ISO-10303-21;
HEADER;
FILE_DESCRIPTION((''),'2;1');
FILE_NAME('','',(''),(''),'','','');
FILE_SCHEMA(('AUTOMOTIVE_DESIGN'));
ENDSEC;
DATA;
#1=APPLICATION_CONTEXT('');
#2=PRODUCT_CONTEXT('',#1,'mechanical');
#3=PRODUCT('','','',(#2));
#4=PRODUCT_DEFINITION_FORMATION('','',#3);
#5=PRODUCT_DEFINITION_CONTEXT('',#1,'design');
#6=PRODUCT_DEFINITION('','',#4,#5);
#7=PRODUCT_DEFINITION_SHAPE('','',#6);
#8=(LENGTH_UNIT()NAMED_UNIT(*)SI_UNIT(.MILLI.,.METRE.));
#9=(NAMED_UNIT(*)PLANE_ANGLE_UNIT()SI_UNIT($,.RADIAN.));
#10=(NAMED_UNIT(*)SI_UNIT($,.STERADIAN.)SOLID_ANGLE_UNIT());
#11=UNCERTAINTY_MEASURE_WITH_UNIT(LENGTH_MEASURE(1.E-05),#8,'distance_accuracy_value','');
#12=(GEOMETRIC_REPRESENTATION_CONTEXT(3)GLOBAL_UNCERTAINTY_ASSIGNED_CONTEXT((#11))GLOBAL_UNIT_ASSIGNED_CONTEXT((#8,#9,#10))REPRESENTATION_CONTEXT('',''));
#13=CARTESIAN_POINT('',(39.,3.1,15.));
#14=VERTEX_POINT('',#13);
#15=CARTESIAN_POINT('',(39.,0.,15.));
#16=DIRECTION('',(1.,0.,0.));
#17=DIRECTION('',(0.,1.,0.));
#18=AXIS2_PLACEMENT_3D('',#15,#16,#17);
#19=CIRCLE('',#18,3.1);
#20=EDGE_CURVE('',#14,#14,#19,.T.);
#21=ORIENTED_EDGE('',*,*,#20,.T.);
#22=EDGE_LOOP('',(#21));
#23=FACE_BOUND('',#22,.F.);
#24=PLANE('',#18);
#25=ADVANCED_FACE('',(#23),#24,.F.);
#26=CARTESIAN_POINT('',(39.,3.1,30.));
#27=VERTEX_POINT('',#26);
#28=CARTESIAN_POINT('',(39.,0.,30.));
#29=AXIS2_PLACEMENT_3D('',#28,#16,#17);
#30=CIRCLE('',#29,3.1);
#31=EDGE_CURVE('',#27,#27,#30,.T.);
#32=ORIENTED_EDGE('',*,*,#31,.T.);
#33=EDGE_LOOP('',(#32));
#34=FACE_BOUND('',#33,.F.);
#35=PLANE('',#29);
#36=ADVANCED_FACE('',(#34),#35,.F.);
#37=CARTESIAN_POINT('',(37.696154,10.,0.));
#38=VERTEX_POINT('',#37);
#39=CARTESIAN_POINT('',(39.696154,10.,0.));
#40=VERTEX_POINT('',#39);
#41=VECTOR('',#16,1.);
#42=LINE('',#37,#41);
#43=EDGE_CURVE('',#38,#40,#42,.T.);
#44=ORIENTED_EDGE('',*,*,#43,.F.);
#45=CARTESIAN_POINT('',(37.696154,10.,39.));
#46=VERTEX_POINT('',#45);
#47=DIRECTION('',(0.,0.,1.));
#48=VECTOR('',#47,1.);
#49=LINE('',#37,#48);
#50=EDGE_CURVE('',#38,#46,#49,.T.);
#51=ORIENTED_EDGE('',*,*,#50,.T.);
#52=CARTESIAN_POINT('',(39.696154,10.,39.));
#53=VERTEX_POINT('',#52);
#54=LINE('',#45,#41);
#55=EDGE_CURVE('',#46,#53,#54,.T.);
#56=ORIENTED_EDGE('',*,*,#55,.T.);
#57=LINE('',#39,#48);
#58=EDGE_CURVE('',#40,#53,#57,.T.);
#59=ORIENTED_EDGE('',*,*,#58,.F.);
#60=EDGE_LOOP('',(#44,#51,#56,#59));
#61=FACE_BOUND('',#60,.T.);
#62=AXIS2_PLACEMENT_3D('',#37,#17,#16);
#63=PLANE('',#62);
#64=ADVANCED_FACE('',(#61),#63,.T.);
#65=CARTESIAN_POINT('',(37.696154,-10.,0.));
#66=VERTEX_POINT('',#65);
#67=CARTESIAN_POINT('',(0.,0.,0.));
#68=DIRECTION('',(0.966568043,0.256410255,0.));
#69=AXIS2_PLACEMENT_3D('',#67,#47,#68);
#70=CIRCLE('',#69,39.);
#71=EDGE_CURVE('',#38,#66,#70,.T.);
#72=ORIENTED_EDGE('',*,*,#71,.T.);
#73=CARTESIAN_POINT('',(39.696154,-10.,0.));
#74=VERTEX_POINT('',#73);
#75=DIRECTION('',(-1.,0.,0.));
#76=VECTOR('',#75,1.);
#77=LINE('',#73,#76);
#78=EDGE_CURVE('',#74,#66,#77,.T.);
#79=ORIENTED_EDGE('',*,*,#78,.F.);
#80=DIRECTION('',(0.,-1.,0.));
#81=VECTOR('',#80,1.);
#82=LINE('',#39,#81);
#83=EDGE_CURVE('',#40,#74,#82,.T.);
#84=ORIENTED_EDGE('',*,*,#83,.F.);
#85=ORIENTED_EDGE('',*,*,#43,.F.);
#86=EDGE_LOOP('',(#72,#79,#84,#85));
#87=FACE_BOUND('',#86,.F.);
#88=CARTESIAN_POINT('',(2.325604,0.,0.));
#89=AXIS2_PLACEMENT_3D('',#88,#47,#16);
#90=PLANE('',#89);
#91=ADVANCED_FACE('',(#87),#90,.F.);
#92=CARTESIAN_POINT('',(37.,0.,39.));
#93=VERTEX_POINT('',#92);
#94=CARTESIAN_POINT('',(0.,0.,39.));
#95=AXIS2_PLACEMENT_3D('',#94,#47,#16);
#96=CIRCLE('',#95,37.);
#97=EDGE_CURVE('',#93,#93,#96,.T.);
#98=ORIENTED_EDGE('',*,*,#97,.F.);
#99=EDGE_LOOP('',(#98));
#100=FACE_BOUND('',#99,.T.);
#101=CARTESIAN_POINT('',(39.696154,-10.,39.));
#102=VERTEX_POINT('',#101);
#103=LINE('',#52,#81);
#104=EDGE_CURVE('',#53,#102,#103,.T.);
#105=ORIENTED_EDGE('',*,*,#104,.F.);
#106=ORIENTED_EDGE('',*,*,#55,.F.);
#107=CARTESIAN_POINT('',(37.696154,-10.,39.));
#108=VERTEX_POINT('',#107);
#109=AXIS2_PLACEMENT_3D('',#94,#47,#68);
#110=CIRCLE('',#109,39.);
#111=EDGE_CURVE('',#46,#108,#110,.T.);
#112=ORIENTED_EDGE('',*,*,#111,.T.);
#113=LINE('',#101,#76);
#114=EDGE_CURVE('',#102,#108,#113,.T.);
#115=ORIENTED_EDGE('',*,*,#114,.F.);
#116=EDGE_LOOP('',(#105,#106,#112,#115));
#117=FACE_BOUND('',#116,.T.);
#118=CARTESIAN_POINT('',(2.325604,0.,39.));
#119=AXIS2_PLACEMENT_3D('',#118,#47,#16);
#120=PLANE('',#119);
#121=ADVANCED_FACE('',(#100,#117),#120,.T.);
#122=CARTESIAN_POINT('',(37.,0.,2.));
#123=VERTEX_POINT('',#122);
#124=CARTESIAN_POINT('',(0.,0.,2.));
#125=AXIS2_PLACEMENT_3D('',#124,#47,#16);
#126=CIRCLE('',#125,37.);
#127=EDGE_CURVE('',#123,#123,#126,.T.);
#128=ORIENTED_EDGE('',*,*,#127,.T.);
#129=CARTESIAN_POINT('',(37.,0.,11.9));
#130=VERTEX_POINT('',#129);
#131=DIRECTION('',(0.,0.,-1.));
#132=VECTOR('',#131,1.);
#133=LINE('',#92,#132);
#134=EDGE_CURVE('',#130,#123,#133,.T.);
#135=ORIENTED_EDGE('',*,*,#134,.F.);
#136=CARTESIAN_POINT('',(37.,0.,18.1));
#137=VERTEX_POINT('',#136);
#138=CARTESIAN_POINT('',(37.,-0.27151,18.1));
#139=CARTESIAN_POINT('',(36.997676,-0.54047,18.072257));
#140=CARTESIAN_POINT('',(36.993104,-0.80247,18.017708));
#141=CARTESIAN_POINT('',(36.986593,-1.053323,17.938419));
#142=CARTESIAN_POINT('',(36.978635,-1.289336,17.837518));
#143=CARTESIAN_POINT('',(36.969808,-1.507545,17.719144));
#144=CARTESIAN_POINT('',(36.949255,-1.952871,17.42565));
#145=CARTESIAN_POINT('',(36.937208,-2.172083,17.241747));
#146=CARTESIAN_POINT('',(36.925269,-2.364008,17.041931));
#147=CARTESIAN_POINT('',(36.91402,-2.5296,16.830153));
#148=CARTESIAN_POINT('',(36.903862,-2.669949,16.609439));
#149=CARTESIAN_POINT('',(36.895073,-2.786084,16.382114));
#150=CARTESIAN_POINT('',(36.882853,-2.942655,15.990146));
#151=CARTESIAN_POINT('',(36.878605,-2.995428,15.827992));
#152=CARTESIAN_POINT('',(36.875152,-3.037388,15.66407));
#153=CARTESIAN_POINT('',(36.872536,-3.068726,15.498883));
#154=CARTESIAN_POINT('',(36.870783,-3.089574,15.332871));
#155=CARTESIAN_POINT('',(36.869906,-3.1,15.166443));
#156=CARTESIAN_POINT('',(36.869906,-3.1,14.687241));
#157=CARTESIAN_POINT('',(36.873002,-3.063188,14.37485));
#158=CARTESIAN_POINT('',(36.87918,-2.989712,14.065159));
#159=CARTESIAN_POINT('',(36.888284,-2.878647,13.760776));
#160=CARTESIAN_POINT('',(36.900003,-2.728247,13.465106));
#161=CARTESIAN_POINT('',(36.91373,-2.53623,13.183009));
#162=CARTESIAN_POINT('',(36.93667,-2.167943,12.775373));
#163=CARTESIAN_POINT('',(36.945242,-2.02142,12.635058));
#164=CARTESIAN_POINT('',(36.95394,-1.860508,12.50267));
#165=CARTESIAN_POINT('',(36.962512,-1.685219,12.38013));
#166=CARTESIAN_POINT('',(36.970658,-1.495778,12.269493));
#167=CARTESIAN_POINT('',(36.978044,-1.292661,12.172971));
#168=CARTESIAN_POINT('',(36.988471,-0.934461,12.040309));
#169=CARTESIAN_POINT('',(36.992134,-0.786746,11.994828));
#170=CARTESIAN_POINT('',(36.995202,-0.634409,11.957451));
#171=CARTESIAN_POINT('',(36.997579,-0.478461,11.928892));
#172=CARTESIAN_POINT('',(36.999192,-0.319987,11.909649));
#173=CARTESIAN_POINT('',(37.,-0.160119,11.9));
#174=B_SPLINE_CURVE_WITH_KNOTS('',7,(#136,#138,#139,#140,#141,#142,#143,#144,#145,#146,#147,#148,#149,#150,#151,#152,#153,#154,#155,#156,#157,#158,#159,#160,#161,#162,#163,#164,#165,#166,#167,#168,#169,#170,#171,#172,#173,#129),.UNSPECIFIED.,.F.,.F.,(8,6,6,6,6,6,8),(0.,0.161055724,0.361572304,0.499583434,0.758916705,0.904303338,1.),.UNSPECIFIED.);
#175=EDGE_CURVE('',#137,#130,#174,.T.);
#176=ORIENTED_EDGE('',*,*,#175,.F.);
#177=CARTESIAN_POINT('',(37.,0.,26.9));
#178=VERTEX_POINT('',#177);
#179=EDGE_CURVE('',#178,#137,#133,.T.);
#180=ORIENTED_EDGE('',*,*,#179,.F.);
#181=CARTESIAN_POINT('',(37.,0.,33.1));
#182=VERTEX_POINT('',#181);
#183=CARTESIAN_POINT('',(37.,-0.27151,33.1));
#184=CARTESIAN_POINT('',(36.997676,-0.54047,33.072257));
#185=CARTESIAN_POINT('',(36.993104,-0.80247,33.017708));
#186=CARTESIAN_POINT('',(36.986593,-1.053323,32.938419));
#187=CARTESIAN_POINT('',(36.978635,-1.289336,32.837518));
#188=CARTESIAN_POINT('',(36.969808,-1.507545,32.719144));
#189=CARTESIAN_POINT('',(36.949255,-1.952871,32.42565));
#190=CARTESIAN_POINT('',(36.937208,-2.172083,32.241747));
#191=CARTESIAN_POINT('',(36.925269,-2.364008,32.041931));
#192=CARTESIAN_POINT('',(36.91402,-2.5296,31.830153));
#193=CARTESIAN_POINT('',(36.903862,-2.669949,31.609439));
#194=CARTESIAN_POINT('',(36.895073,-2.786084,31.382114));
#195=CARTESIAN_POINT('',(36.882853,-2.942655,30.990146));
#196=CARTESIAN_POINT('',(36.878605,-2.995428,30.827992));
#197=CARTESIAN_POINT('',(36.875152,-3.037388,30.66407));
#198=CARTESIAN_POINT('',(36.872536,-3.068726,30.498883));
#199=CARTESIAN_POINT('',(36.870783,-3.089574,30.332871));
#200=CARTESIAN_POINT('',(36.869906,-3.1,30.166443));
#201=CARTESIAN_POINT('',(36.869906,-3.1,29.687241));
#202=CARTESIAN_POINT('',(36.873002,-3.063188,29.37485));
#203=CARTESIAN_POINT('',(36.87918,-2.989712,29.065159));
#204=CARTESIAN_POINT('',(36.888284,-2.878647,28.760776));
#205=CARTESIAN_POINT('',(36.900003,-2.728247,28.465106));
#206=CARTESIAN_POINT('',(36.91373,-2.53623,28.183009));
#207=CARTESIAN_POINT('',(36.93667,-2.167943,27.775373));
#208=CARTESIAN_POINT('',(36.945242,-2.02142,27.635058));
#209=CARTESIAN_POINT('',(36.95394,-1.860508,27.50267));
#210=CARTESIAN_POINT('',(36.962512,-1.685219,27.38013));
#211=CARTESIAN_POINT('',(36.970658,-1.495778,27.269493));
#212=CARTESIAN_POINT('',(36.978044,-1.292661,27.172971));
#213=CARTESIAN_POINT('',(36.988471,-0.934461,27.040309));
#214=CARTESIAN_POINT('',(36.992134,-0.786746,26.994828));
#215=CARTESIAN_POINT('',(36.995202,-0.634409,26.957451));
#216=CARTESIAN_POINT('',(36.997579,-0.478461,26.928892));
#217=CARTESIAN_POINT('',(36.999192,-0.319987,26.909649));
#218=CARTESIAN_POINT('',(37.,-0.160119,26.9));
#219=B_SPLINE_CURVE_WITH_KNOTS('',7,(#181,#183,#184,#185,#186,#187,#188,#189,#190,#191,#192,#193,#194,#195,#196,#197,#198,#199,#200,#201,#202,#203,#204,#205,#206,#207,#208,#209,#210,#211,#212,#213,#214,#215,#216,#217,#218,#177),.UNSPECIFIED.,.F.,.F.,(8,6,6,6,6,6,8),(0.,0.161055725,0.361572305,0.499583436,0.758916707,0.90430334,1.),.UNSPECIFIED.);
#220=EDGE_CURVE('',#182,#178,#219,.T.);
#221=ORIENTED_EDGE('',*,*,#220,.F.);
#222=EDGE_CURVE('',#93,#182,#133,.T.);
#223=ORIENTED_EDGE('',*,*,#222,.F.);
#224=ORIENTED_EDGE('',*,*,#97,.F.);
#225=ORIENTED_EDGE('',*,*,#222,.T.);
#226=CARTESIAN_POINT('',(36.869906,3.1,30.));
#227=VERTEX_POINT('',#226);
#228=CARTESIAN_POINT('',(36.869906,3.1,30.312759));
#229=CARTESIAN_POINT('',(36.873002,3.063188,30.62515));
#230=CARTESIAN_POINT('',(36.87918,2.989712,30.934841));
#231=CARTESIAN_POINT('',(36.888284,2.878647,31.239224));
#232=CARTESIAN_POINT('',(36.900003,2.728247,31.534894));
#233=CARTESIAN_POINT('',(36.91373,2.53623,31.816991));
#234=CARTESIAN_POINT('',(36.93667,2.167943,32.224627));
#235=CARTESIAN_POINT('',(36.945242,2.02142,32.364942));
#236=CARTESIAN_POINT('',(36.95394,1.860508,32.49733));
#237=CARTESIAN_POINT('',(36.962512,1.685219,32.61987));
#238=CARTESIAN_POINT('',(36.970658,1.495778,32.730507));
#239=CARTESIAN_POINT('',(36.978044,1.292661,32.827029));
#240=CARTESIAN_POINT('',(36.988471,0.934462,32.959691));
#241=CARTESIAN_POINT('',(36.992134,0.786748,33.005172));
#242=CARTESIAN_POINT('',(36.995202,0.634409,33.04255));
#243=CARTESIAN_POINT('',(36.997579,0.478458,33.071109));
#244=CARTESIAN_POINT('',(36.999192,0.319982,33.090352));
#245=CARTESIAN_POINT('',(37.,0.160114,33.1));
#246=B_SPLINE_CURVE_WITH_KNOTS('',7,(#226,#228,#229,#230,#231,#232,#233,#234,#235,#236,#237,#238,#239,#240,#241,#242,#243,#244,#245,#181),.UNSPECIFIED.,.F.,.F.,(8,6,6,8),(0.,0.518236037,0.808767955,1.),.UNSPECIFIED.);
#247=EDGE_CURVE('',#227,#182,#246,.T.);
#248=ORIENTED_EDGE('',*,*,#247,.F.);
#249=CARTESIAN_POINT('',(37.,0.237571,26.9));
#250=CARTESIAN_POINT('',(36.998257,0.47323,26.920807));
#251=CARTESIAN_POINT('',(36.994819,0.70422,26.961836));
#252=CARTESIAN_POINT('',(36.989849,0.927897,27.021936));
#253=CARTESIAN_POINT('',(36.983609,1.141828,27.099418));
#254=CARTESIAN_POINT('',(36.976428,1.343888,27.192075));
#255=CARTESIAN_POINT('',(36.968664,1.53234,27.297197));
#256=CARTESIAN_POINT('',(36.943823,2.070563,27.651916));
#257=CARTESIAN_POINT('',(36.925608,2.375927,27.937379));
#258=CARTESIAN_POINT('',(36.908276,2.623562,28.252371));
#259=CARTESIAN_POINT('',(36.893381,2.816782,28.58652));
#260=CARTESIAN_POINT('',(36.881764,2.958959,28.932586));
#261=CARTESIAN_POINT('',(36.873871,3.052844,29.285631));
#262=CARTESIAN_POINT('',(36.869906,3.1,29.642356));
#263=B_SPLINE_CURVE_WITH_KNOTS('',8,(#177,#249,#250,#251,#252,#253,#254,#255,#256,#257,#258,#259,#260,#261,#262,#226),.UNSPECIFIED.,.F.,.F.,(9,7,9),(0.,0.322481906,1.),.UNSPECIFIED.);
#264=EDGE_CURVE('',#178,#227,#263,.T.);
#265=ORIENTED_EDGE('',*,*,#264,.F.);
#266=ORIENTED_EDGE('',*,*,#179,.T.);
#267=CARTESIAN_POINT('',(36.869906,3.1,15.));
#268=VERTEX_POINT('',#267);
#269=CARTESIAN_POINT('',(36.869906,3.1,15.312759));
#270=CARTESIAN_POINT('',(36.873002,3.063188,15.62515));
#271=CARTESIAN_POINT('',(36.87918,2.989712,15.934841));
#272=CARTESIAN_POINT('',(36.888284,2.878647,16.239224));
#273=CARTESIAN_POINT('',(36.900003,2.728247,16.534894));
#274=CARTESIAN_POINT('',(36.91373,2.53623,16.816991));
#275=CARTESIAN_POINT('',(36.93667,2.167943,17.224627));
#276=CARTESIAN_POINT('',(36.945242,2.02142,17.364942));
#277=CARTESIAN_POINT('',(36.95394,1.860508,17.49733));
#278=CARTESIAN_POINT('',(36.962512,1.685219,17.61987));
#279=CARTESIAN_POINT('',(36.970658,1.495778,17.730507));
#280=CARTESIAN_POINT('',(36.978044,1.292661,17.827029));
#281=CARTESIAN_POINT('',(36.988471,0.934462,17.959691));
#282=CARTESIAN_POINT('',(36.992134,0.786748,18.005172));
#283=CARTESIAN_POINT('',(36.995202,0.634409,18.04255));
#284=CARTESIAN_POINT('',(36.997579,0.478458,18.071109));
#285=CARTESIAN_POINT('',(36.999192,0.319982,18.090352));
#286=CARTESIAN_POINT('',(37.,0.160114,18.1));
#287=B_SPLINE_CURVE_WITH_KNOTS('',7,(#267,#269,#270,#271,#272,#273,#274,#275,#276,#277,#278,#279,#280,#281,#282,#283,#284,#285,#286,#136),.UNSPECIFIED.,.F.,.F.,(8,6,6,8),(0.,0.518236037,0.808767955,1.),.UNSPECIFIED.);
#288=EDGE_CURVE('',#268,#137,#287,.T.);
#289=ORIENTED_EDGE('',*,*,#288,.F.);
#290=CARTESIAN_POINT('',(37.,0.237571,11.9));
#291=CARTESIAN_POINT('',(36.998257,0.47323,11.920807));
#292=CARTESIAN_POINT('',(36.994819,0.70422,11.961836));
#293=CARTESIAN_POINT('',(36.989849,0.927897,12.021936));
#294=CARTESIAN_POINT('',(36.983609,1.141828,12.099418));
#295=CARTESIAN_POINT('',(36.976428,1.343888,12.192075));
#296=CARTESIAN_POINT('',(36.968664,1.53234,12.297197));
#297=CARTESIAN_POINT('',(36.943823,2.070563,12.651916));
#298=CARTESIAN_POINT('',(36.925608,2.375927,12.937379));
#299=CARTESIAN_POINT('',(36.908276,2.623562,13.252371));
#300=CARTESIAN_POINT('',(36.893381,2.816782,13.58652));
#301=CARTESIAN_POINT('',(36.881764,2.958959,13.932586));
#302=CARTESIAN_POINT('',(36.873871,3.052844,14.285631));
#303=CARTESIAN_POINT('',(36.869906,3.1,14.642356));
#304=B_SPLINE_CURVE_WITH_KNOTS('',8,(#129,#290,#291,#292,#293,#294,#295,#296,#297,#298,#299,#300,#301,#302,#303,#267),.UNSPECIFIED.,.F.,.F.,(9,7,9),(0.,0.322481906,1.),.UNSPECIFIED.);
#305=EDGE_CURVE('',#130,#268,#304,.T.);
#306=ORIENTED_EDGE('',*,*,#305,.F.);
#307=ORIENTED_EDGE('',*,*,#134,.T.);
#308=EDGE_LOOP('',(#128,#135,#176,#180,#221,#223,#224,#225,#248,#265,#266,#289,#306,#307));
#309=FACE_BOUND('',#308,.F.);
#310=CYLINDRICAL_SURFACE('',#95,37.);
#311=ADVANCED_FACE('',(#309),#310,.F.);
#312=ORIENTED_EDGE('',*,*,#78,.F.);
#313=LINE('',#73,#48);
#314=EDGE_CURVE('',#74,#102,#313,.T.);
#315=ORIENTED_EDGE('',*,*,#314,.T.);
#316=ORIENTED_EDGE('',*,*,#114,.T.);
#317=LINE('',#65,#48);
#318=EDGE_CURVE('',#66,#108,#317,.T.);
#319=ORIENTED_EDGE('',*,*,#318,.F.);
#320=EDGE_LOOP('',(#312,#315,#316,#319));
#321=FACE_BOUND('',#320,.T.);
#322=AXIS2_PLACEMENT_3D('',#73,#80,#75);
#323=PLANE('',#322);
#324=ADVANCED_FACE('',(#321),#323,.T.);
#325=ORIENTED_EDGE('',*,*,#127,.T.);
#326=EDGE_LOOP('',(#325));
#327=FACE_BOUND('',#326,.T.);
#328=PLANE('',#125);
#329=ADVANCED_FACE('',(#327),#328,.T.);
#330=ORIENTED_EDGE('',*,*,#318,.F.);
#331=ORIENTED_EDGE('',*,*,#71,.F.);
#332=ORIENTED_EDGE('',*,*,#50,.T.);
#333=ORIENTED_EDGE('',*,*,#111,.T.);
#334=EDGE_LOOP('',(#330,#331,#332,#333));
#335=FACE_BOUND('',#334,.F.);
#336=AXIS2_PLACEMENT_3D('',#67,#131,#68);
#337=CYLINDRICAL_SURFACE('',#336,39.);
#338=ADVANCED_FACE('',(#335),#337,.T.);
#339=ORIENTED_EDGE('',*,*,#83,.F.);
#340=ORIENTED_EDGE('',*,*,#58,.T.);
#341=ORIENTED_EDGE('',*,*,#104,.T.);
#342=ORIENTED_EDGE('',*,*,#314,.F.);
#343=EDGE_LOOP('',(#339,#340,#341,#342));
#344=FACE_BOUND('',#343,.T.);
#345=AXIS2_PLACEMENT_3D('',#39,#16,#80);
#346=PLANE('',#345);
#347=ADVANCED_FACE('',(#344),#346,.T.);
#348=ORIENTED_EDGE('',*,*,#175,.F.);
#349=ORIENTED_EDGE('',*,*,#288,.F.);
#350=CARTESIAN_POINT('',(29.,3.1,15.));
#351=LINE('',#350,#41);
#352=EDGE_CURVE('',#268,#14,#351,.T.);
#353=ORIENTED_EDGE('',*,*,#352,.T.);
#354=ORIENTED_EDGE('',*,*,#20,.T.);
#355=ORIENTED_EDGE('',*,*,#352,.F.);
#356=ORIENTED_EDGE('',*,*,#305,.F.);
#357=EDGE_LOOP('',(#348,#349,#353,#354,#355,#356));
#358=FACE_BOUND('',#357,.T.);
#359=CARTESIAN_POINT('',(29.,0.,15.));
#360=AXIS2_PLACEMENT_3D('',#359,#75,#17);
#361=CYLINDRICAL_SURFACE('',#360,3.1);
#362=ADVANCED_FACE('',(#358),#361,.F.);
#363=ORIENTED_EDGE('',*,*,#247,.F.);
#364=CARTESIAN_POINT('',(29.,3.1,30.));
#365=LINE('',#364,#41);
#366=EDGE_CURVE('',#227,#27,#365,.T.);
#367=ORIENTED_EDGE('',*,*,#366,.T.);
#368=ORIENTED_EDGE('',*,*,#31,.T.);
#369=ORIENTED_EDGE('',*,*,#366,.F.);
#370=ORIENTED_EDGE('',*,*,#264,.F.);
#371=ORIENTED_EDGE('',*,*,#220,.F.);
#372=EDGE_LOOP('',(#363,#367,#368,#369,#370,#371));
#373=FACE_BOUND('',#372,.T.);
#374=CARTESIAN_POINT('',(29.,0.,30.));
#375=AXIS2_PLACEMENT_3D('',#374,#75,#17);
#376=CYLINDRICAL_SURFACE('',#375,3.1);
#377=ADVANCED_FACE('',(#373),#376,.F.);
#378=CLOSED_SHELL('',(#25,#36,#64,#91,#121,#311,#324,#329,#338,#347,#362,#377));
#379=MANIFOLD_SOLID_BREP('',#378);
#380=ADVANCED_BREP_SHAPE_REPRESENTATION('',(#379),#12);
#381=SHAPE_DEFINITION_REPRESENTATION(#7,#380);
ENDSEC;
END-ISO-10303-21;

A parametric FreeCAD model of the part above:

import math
import FreeCAD as App
import Part
import Sketcher

V = App.Vector
Q = App.Units.Quantity

doc = App.newDocument("Part")
body = doc.addObject("PartDesign::Body", "Body")
body.AllowCompound = True

# Sketch on YZ plane
sketch1 = body.newObject("Sketcher::SketchObject", "Sketch")
sketch1.AttachmentSupport = (doc.getObject("YZ_Plane"), [""])
sketch1.MapMode = "FlatFace"
sketch1.AttachmentOffset = App.Placement(V(0, 0, 29), App.Rotation())
sketch1.addGeometry(Part.Circle(V(0, 30, 0), V(0, 0, 1), 3.1), False)
sketch1.addGeometry(Part.Circle(V(0, 15, 0), V(0, 0, 1), 3.1), False)
sketch1.addConstraint(Sketcher.Constraint("Equal", 0, 1))
sketch1.addConstraint(Sketcher.Constraint("PointOnObject", 0, 3, -2))
sketch1.addConstraint(Sketcher.Constraint("PointOnObject", 1, 3, -2))
sketch1.addConstraint(Sketcher.Constraint("Diameter", 0, Q("6.2 mm")))
sketch1.addConstraint(Sketcher.Constraint("DistanceY", -1, 1, 0, 3, Q("30 mm")))
sketch1.addConstraint(Sketcher.Constraint("DistanceY", -1, 1, 1, 3, Q("15 mm")))
pad1 = body.newObject("PartDesign::Pad", "Pad")
pad1.Profile = sketch1
pad1.Length = 10
body2 = doc.addObject("PartDesign::Body", "Body001")

# Sketch on XY plane
sketch2 = body2.newObject("Sketcher::SketchObject", "Sketch001")
sketch2.AttachmentSupport = (doc.getObject("XY_Plane001"), [""])
sketch2.MapMode = "FlatFace"
sketch2.addGeometry(Part.ArcOfCircle(Part.Circle(V(0, 0, 0), V(0, 0, 1), 39), math.radians(15), math.radians(345)), False)
sketch2.addGeometry(Part.LineSegment(V(37.7, -10, 0), V(39.7, -10, 0)), False)
sketch2.addGeometry(Part.LineSegment(V(39.7, -10, 0), V(39.7, 10, 0)), False)
sketch2.addGeometry(Part.LineSegment(V(39.7, 10, 0), V(37.7, 10, 0)), False)
sketch2.addConstraint(Sketcher.Constraint("Coincident", 0, 2, 1, 1))
sketch2.addConstraint(Sketcher.Constraint("Coincident", 1, 2, 2, 1))
sketch2.addConstraint(Sketcher.Constraint("Coincident", 2, 2, 3, 1))
sketch2.addConstraint(Sketcher.Constraint("Coincident", 3, 2, 0, 1))
sketch2.addConstraint(Sketcher.Constraint("Horizontal", 1))
sketch2.addConstraint(Sketcher.Constraint("Vertical", 2))
sketch2.addConstraint(Sketcher.Constraint("Horizontal", 3))
sketch2.addConstraint(Sketcher.Constraint("Coincident", 0, 3, -1, 1))
sketch2.addConstraint(Sketcher.Constraint("Vertical", 0, 2, 3, 2))
sketch2.addConstraint(Sketcher.Constraint("Radius", 0, Q("39 mm")))
sketch2.addConstraint(Sketcher.Constraint("DistanceX", 1, 1, 1, 2, Q("2 mm")))
sketch2.addConstraint(Sketcher.Constraint("DistanceY", 2, 1, 2, 2, Q("20 mm")))
pad2 = body2.newObject("PartDesign::Pad", "Pad001")
pad2.Profile = sketch2
pad2.Length = 39

# Sketch on XY plane
sketch3 = body2.newObject("Sketcher::SketchObject", "Sketch002")
sketch3.AttachmentSupport = (doc.getObject("XY_Plane001"), [""])
sketch3.MapMode = "FlatFace"
sketch3.AttachmentOffset = App.Placement(V(0, 0, 39), App.Rotation())
sketch3.addGeometry(Part.Circle(V(0, 0, 0), V(0, 0, 1), 37), False)
sketch3.addConstraint(Sketcher.Constraint("Coincident", 0, 3, -1, 1))
sketch3.addConstraint(Sketcher.Constraint("Diameter", 0, Q("74 mm")))
pocket1 = body2.newObject("PartDesign::Pocket", "Pocket")
pocket1.Profile = sketch3
pocket1.Length = 37
doc.recompute()

boolean = body2.newObject("PartDesign::Boolean", "Boolean")
boolean.Type = "Cut"
boolean.addObjects([body])

doc.recompute()
